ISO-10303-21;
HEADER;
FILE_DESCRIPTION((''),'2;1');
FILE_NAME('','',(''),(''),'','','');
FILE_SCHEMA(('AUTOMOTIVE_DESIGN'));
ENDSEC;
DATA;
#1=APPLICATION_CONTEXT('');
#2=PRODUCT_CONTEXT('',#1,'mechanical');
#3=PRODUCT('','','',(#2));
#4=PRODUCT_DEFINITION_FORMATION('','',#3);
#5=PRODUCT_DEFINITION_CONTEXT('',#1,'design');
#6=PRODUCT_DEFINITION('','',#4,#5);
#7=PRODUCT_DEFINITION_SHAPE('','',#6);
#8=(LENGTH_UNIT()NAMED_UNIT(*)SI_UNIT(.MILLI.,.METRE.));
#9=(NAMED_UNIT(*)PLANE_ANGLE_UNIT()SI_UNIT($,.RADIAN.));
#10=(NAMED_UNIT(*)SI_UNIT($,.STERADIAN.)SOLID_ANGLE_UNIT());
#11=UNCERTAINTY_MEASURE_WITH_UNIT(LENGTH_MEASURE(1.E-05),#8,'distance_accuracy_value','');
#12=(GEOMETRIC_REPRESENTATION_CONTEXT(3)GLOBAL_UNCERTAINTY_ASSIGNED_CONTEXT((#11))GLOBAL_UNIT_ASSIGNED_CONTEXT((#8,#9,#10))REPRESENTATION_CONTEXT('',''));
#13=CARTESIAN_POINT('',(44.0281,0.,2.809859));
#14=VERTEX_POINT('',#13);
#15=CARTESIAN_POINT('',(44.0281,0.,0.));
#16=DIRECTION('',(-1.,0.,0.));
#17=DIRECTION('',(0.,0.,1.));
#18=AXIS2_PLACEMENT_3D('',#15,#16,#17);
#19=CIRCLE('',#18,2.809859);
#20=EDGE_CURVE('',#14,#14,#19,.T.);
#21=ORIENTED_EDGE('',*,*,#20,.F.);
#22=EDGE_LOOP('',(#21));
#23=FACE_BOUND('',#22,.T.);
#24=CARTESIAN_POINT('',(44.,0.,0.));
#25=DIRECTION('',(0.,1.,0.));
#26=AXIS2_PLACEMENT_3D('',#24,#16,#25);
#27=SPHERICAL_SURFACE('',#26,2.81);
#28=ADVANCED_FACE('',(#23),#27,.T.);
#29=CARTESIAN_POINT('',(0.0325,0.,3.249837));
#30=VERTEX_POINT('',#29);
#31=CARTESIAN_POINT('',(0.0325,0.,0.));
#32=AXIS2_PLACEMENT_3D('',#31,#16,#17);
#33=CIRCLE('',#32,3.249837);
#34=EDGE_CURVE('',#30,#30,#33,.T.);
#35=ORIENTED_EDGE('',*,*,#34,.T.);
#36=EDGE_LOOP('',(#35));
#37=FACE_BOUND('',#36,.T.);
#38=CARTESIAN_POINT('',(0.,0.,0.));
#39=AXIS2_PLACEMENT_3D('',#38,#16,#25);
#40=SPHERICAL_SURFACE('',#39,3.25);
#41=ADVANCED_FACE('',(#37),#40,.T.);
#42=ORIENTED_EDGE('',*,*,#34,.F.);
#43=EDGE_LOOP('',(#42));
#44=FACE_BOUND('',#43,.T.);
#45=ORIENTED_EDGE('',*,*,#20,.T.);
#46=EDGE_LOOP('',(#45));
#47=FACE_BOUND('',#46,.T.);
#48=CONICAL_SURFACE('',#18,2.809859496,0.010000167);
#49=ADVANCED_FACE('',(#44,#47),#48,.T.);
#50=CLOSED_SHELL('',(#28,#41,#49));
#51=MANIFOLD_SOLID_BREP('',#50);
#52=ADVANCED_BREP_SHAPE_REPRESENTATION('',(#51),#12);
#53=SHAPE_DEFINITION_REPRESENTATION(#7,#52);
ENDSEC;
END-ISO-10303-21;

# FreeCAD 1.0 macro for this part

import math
import FreeCAD as App
import Part
import Sketcher

doc = App.newDocument("Part")
body = doc.addObject("PartDesign::Body", "Body")

sketch1 = body.newObject("Sketcher::SketchObject", "Sketch")
sketch1.AttachmentSupport = (doc.getObject("XY_Plane"), [""])
sketch1.MapMode = "FlatFace"
sketch1.addGeometry([
    Part.LineSegment(App.Vector(44, 2.8, 0), App.Vector(0, 3.2, 0)),
    Part.ArcOfCircle(Part.Circle(App.Vector(0, 0, 0), App.Vector(0, 0, 1), 3.2), math.radians(89), math.radians(180)),
    Part.LineSegment(App.Vector(-3.2, 0, 0), App.Vector(46.8, 0, 0)),
    Part.ArcOfCircle(Part.Circle(App.Vector(44, 0, 0), App.Vector(0, 0, 1), 2.8), math.radians(0), math.radians(89)),
], False)
sketch1.addConstraint([
    Sketcher.Constraint("Tangent", 0, 2, 1, 1),
    Sketcher.Constraint("Coincident", 1, 2, 2, 1),
    Sketcher.Constraint("Coincident", 2, 2, 3, 1),
    Sketcher.Constraint("Tangent", 3, 2, 0, 1),
    Sketcher.Constraint("Horizontal", 2),
    Sketcher.Constraint("Coincident", 1, 3, -1, 1),
    Sketcher.Constraint("PointOnObject", 3, 3, -1),
    Sketcher.Constraint("PointOnObject", 1, 2, -1),
    Sketcher.Constraint("Radius", 1, 3.25),
    Sketcher.Constraint("Radius", 3, 2.81),
    Sketcher.Constraint("DistanceX", -1, 1, 3, 3, 44.0),
])
revolution = body.newObject("PartDesign::Revolution", "Revolution")
revolution.Profile = sketch1
revolution.ReferenceAxis = (sketch1, ["H_Axis"])
revolution.Angle = 360

doc.recompute()
